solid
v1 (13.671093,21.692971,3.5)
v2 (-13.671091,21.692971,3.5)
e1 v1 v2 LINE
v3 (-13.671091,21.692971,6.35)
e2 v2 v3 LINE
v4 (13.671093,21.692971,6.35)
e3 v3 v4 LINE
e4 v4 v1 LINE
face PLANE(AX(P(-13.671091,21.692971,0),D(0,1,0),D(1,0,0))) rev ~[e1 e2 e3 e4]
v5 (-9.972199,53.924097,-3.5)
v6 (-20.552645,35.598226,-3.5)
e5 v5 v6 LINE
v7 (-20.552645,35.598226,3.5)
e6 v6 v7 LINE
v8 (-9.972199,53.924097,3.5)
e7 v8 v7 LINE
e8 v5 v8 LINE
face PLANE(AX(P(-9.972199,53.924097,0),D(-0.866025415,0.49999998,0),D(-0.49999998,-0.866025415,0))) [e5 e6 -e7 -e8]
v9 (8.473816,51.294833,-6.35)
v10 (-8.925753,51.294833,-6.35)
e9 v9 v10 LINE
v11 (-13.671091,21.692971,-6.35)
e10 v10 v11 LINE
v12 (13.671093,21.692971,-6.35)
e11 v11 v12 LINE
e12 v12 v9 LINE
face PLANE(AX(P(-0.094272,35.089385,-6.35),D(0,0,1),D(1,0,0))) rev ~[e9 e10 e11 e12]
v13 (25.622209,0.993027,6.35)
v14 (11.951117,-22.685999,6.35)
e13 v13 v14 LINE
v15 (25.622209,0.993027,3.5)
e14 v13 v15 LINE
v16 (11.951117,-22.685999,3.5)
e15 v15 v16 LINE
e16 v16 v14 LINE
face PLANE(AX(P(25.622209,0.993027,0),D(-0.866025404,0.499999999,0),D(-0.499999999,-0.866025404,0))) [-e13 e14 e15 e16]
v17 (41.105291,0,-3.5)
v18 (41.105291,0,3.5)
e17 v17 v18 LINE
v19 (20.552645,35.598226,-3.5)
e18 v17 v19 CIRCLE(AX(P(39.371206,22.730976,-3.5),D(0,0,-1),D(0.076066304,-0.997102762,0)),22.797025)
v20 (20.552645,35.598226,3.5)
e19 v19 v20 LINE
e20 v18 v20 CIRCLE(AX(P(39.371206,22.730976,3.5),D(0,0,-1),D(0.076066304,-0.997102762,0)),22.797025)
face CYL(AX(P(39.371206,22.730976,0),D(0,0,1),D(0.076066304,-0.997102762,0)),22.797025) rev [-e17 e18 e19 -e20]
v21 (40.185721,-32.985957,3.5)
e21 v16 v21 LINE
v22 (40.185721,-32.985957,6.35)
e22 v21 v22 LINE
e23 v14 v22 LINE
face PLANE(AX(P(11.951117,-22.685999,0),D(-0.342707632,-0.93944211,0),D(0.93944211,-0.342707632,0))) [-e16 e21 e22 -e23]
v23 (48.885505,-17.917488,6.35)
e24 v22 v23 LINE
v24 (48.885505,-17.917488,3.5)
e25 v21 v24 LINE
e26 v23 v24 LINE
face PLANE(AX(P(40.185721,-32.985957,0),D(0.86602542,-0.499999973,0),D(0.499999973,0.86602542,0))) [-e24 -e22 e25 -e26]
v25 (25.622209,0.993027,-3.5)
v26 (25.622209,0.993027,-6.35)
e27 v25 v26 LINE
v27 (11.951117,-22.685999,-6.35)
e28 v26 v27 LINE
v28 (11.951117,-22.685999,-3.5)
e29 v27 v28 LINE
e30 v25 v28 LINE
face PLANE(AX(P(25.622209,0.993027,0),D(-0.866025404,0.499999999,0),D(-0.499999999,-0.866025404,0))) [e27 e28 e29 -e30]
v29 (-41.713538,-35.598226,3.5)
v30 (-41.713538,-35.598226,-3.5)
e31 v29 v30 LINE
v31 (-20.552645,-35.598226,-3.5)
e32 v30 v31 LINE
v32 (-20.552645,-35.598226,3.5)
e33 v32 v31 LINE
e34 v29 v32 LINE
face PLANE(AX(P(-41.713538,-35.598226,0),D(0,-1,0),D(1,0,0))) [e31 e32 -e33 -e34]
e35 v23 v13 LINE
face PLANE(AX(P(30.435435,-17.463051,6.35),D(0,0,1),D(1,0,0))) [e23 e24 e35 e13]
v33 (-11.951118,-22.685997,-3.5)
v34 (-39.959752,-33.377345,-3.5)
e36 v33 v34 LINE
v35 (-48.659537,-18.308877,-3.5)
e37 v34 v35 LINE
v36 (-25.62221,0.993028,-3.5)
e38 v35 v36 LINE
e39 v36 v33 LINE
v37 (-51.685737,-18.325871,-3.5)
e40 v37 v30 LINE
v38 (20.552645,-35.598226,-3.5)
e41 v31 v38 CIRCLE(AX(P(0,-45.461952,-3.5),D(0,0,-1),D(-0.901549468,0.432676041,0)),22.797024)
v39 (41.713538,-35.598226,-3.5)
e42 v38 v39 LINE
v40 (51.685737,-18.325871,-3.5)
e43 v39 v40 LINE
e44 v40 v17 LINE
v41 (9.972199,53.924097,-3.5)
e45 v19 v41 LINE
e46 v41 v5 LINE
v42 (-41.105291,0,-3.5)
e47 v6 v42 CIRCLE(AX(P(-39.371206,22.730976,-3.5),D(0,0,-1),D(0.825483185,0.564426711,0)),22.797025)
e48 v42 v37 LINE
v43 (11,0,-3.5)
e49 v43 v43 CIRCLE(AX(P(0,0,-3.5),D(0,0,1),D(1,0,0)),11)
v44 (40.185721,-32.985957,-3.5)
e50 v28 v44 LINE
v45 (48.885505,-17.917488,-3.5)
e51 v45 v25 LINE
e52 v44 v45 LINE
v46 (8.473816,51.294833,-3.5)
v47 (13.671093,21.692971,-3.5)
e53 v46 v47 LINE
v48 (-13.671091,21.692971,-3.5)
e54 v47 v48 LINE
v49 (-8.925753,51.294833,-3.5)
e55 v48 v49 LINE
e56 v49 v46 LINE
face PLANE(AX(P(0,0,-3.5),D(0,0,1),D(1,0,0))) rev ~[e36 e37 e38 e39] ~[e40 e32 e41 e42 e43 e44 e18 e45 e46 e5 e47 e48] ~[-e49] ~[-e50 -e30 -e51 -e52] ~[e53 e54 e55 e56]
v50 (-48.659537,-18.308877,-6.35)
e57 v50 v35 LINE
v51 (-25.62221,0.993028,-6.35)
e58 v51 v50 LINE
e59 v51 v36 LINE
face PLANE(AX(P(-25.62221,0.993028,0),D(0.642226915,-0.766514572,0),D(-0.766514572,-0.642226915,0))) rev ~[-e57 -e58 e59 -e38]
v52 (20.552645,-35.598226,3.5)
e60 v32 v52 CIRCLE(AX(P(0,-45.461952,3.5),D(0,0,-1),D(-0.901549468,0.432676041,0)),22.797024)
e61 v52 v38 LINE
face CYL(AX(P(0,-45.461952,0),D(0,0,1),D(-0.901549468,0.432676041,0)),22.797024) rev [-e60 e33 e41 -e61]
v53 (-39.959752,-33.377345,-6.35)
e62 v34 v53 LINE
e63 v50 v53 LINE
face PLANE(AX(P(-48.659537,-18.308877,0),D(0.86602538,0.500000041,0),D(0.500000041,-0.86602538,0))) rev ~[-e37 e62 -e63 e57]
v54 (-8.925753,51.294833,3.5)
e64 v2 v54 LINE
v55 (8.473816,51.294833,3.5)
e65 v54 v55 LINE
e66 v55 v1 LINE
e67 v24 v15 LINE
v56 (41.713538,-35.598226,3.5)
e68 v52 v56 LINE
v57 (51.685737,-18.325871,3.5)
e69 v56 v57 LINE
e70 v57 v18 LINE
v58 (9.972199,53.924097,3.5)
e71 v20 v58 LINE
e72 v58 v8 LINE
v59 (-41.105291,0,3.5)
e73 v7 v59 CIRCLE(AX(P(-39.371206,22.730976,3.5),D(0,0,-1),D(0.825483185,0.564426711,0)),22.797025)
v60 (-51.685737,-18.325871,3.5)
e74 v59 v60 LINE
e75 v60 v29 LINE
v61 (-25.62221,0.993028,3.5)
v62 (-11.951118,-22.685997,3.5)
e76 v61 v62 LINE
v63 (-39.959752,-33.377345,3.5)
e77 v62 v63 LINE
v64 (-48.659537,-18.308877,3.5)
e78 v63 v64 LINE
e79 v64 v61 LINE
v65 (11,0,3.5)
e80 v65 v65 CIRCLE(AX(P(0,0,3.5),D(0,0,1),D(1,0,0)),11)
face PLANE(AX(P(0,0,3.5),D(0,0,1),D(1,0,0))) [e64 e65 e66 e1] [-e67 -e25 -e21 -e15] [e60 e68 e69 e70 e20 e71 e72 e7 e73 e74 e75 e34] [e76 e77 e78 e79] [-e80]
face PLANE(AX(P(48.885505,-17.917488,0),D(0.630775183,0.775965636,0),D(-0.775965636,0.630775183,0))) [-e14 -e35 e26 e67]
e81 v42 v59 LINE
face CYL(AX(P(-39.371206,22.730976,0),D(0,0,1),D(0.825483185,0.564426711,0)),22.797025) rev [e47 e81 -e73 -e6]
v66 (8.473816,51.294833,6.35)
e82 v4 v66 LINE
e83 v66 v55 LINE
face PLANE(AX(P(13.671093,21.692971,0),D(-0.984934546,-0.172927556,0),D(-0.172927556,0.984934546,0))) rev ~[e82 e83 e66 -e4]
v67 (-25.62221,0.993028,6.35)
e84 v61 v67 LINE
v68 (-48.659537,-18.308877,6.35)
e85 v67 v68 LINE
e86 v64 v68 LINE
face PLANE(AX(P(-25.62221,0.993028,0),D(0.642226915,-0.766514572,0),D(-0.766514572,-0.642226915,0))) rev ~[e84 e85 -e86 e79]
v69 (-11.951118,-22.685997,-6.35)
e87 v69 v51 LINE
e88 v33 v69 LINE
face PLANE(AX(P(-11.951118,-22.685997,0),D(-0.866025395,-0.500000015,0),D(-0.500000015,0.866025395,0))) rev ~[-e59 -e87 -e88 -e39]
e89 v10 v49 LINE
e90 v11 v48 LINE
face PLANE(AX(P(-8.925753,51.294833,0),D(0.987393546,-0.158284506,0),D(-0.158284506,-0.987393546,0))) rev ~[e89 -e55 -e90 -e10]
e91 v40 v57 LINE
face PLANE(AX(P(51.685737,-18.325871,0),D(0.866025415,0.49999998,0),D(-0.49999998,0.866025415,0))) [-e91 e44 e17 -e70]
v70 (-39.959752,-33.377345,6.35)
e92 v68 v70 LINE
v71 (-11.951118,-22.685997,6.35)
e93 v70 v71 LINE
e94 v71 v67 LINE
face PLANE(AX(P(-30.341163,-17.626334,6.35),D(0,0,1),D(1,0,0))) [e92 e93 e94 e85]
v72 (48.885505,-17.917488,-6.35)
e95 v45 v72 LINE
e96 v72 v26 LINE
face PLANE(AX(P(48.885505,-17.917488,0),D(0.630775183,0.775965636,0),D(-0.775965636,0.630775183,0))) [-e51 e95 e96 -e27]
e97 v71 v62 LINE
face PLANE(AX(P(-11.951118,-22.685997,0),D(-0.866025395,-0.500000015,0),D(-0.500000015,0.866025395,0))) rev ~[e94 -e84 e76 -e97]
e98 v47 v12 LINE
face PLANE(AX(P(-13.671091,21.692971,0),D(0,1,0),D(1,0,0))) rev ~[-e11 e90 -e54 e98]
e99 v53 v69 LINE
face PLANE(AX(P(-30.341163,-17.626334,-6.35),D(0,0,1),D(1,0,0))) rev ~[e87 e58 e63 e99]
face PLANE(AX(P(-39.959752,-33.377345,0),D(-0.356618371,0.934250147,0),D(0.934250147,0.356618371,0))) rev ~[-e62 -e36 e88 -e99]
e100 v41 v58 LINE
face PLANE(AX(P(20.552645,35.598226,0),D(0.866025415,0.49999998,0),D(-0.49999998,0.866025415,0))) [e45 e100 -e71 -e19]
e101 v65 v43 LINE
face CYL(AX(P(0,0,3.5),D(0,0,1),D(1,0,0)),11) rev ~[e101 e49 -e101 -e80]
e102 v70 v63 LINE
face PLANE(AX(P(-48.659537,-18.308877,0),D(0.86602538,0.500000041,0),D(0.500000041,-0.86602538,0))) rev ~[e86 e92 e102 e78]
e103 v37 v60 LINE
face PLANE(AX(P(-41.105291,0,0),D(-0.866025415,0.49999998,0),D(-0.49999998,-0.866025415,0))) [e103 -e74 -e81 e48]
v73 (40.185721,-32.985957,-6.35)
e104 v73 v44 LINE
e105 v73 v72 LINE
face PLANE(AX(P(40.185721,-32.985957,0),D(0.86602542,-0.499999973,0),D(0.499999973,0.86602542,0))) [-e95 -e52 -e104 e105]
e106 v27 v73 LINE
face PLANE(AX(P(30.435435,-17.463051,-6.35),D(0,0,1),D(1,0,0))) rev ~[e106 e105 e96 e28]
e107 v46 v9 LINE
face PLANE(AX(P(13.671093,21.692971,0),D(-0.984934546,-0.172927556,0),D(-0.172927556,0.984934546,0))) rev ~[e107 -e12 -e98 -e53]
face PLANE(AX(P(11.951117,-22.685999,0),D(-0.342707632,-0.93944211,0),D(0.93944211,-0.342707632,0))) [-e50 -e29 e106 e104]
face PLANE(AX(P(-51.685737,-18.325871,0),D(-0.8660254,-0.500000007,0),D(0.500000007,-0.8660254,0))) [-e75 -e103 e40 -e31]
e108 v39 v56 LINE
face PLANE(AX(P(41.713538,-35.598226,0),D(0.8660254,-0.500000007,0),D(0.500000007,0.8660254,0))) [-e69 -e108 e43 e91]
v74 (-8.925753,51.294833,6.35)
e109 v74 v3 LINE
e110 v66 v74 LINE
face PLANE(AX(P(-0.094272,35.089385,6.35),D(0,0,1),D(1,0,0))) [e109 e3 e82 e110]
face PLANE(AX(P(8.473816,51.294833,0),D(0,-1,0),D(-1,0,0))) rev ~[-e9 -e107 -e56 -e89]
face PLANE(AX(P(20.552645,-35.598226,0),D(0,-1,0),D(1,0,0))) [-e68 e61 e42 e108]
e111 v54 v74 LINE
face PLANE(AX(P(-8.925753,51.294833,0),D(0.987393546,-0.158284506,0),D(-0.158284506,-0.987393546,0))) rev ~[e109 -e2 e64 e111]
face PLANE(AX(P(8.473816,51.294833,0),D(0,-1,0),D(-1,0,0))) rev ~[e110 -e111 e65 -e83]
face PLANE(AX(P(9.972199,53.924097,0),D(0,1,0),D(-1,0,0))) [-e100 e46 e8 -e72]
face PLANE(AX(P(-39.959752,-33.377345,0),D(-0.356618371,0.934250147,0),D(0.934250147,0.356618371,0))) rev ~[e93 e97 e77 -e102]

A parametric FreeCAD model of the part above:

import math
import FreeCAD as App
import Part
import Sketcher

V = App.Vector
Q = App.Units.Quantity


def add_polygon(sketch, points):
    """Adds a closed chain of lines whose ends are joined by coincident constraints."""
    first, n = sketch.GeometryCount, len(points)
    for a, b in zip(points, points[1:] + points[:1]):
        sketch.addGeometry(Part.LineSegment(App.Vector(*a, 0), App.Vector(*b, 0)), False)
    for i in range(n):
        sketch.addConstraint(Sketcher.Constraint("Coincident", first + i, 2, first + (i + 1) % n, 1))

doc = App.newDocument("Part")
body = doc.addObject("PartDesign::Body", "Body")

# Sketch on XY plane
sketch1 = body.newObject("Sketcher::SketchObject", "Sketch")
sketch1.AttachmentSupport = (doc.getObject("XY_Plane"), [""])
sketch1.MapMode = "FlatFace"
sketch1.addGeometry([
    Part.LineSegment(V(20.552645, -35.598226, 0), V(41.713538, -35.598226, 0)),  # 0
    Part.LineSegment(V(41.713538, -35.598226, 0), V(51.685737, -18.325871, 0)),  # 1
    Part.LineSegment(V(51.685737, -18.325871, 0), V(41.105291, 0, 0)),  # 2
    Part.ArcOfCircle(Part.Circle(V(39.371206, 22.730976, 0), V(0, 0, 1), 22.797025), math.radians(145.637509), math.radians(274.362492)),  # 3
    Part.LineSegment(V(20.552645, 35.598226, 0), V(9.972199, 53.924097, 0)),  # 4
    Part.LineSegment(V(9.972199, 53.924097, 0), V(-9.972199, 53.924097, 0)),  # 5
    Part.LineSegment(V(-9.972199, 53.924097, 0), V(-20.552645, 35.598226, 0)),  # 6
    Part.ArcOfCircle(Part.Circle(V(-39.371206, 22.730976, 0), V(0, 0, 1), 22.797025), math.radians(-94.362492), math.radians(34.362491)),  # 7
    Part.LineSegment(V(-41.105291, 0, 0), V(-51.685737, -18.325871, 0)),  # 8
    Part.LineSegment(V(-51.685737, -18.325871, 0), V(-41.713538, -35.598226, 0)),  # 9
    Part.LineSegment(V(-41.713538, -35.598226, 0), V(-20.552645, -35.598226, 0)),  # 10
    Part.ArcOfCircle(Part.Circle(V(0, -45.461952, 0), V(0, 0, 1), 22.797024), math.radians(25.637509), math.radians(154.362491)),  # 11
], False)
sketch1.addConstraint([
    Sketcher.Constraint("Coincident", 0, 2, 1, 1),
    Sketcher.Constraint("Coincident", 1, 2, 2, 1),
    Sketcher.Constraint("Coincident", 2, 2, 3, 2),
    Sketcher.Constraint("Coincident", 3, 1, 4, 1),
    Sketcher.Constraint("Coincident", 4, 2, 5, 1),
    Sketcher.Constraint("Coincident", 5, 2, 6, 1),
    Sketcher.Constraint("Coincident", 6, 2, 7, 2),
    Sketcher.Constraint("Coincident", 7, 1, 8, 1),
    Sketcher.Constraint("Coincident", 8, 2, 9, 1),
    Sketcher.Constraint("Coincident", 9, 2, 10, 1),
    Sketcher.Constraint("Coincident", 10, 2, 11, 2),
    Sketcher.Constraint("Coincident", 11, 1, 0, 1),
    Sketcher.Constraint("Horizontal", 0),
    Sketcher.Constraint("Horizontal", 5),
    Sketcher.Constraint("Horizontal", 10),
    Sketcher.Constraint("Equal", 3, 7),
    Sketcher.Constraint("Equal", 7, 11),
    Sketcher.Constraint("Symmetric", 2, 2, 7, 1, -1, 1),
    Sketcher.Constraint("Symmetric", 3, 1, 10, 2, -1, 1),
    Sketcher.Constraint("Symmetric", 6, 2, 11, 1, -1, 1),
    Sketcher.Constraint("Symmetric", 3, 3, 7, 3, -2),
    Sketcher.Constraint("Symmetric", 1, 2, 8, 2, -2),
    Sketcher.Constraint("Symmetric", 0, 2, 9, 2, -2),
    Sketcher.Constraint("Parallel", 2, 4),
    Sketcher.Constraint("Parallel", 1, 6),
    Sketcher.Constraint("Parallel", 6, 8),
    Sketcher.Constraint("Equal", 2, 4),
    Sketcher.Constraint("Angle", 1, Q("60 deg")),
    Sketcher.Constraint("Radius", 3, Q("22.797025 mm")),
    Sketcher.Constraint("DistanceX", -1, 1, 4, 2, Q("9.972199 mm")),
    Sketcher.Constraint("DistanceX", 0, 2, 1, 2, Q("9.972199 mm")),
    Sketcher.Constraint("DistanceX", 0, 1, 0, 2, Q("21.160893 mm")),
    Sketcher.Constraint("DistanceY", 1, 2, -1, 1, Q("18.325871 mm")),
])
pad1 = body.newObject("PartDesign::Pad", "Pad")
pad1.Profile = sketch1
pad1.Length = 7
pad1.Midplane = True

# Sketch on XY plane
sketch2 = body.newObject("Sketcher::SketchObject", "Sketch001")
sketch2.AttachmentSupport = (doc.getObject("XY_Plane"), [""])
sketch2.MapMode = "FlatFace"
sketch2.AttachmentOffset = App.Placement(V(0, 0, 3.5), App.Rotation())
sketch2.addGeometry(Part.Circle(V(0, 0, 0), V(0, 0, 1), 11), False)
sketch2.addConstraint([
    Sketcher.Constraint("Coincident", 0, 3, -1, 1),
    Sketcher.Constraint("Diameter", 0, Q("22 mm")),
])
pocket1 = body.newObject("PartDesign::Pocket", "Pocket")
pocket1.Profile = sketch2
pocket1.Length = 63.5

# Sketch on XY plane
sketch3 = body.newObject("Sketcher::SketchObject", "Sketch002")
sketch3.AttachmentSupport = (doc.getObject("XY_Plane"), [""])
sketch3.MapMode = "FlatFace"
add_polygon(sketch3, [(8.473816, 51.294833), (-8.925753, 51.294833), (-13.671091, 21.692971), (13.671093, 21.692971)])  # lines 0-3
add_polygon(sketch3, [(-11.951118, -22.685997), (-25.62221, 0.993028), (-48.659537, -18.308877), (-39.959752, -33.377345)])  # lines 4-7
add_polygon(sketch3, [(25.622209, 0.993027), (11.951117, -22.685999), (40.185721, -32.985957), (48.885505, -17.917488)])  # lines 8-11
sketch3.addConstraint([
    Sketcher.Constraint("Horizontal", 0),
    Sketcher.Constraint("Horizontal", 2),
    Sketcher.Constraint("Symmetric", 7, 2, 8, 2, -2),
    Sketcher.Constraint("Symmetric", 4, 2, 11, 2, -2),
    Sketcher.Constraint("Parallel", 4, 6),
    Sketcher.Constraint("Parallel", 8, 10),
    Sketcher.Constraint("Equal", 3, 5),
    Sketcher.Constraint("Equal", 1, 7),
    Sketcher.Constraint("Equal", 5, 9),
    Sketcher.Constraint("Equal", 6, 10),
    Sketcher.Constraint("Equal", 7, 11),
    Sketcher.Constraint("Angle", 4, Q("120.000001 deg")),
    Sketcher.Constraint("DistanceY", 8, 2, -1, 1, Q("22.685999 mm")),
    Sketcher.Constraint("DistanceX", 6, 2, 0, 2, Q("31.033999 mm")),
    Sketcher.Constraint("Distance", 1, Q("29.979801 mm")),
    Sketcher.Constraint("DistanceX", 0, 2, 0, 1, Q("17.399569 mm")),
    Sketcher.Constraint("Distance", 3, Q("30.054649 mm")),
    Sketcher.Constraint("Distance", 6, Q("17.399569 mm")),
    Sketcher.Constraint("DistanceX", 2, 1, 2, 2, Q("27.342184 mm")),
    Sketcher.Constraint("DistanceX", 1, 2, -1, 1, Q("13.671091 mm")),
    Sketcher.Constraint("DistanceY", -1, 1, 1, 2, Q("21.692971 mm")),
    Sketcher.Constraint("DistanceX", 4, 2, -1, 1, Q("25.62221 mm")),
])
pad2 = body.newObject("PartDesign::Pad", "Pad001")
pad2.Profile = sketch3
pad2.Length = 12.7
pad2.Midplane = True

doc.recompute()
